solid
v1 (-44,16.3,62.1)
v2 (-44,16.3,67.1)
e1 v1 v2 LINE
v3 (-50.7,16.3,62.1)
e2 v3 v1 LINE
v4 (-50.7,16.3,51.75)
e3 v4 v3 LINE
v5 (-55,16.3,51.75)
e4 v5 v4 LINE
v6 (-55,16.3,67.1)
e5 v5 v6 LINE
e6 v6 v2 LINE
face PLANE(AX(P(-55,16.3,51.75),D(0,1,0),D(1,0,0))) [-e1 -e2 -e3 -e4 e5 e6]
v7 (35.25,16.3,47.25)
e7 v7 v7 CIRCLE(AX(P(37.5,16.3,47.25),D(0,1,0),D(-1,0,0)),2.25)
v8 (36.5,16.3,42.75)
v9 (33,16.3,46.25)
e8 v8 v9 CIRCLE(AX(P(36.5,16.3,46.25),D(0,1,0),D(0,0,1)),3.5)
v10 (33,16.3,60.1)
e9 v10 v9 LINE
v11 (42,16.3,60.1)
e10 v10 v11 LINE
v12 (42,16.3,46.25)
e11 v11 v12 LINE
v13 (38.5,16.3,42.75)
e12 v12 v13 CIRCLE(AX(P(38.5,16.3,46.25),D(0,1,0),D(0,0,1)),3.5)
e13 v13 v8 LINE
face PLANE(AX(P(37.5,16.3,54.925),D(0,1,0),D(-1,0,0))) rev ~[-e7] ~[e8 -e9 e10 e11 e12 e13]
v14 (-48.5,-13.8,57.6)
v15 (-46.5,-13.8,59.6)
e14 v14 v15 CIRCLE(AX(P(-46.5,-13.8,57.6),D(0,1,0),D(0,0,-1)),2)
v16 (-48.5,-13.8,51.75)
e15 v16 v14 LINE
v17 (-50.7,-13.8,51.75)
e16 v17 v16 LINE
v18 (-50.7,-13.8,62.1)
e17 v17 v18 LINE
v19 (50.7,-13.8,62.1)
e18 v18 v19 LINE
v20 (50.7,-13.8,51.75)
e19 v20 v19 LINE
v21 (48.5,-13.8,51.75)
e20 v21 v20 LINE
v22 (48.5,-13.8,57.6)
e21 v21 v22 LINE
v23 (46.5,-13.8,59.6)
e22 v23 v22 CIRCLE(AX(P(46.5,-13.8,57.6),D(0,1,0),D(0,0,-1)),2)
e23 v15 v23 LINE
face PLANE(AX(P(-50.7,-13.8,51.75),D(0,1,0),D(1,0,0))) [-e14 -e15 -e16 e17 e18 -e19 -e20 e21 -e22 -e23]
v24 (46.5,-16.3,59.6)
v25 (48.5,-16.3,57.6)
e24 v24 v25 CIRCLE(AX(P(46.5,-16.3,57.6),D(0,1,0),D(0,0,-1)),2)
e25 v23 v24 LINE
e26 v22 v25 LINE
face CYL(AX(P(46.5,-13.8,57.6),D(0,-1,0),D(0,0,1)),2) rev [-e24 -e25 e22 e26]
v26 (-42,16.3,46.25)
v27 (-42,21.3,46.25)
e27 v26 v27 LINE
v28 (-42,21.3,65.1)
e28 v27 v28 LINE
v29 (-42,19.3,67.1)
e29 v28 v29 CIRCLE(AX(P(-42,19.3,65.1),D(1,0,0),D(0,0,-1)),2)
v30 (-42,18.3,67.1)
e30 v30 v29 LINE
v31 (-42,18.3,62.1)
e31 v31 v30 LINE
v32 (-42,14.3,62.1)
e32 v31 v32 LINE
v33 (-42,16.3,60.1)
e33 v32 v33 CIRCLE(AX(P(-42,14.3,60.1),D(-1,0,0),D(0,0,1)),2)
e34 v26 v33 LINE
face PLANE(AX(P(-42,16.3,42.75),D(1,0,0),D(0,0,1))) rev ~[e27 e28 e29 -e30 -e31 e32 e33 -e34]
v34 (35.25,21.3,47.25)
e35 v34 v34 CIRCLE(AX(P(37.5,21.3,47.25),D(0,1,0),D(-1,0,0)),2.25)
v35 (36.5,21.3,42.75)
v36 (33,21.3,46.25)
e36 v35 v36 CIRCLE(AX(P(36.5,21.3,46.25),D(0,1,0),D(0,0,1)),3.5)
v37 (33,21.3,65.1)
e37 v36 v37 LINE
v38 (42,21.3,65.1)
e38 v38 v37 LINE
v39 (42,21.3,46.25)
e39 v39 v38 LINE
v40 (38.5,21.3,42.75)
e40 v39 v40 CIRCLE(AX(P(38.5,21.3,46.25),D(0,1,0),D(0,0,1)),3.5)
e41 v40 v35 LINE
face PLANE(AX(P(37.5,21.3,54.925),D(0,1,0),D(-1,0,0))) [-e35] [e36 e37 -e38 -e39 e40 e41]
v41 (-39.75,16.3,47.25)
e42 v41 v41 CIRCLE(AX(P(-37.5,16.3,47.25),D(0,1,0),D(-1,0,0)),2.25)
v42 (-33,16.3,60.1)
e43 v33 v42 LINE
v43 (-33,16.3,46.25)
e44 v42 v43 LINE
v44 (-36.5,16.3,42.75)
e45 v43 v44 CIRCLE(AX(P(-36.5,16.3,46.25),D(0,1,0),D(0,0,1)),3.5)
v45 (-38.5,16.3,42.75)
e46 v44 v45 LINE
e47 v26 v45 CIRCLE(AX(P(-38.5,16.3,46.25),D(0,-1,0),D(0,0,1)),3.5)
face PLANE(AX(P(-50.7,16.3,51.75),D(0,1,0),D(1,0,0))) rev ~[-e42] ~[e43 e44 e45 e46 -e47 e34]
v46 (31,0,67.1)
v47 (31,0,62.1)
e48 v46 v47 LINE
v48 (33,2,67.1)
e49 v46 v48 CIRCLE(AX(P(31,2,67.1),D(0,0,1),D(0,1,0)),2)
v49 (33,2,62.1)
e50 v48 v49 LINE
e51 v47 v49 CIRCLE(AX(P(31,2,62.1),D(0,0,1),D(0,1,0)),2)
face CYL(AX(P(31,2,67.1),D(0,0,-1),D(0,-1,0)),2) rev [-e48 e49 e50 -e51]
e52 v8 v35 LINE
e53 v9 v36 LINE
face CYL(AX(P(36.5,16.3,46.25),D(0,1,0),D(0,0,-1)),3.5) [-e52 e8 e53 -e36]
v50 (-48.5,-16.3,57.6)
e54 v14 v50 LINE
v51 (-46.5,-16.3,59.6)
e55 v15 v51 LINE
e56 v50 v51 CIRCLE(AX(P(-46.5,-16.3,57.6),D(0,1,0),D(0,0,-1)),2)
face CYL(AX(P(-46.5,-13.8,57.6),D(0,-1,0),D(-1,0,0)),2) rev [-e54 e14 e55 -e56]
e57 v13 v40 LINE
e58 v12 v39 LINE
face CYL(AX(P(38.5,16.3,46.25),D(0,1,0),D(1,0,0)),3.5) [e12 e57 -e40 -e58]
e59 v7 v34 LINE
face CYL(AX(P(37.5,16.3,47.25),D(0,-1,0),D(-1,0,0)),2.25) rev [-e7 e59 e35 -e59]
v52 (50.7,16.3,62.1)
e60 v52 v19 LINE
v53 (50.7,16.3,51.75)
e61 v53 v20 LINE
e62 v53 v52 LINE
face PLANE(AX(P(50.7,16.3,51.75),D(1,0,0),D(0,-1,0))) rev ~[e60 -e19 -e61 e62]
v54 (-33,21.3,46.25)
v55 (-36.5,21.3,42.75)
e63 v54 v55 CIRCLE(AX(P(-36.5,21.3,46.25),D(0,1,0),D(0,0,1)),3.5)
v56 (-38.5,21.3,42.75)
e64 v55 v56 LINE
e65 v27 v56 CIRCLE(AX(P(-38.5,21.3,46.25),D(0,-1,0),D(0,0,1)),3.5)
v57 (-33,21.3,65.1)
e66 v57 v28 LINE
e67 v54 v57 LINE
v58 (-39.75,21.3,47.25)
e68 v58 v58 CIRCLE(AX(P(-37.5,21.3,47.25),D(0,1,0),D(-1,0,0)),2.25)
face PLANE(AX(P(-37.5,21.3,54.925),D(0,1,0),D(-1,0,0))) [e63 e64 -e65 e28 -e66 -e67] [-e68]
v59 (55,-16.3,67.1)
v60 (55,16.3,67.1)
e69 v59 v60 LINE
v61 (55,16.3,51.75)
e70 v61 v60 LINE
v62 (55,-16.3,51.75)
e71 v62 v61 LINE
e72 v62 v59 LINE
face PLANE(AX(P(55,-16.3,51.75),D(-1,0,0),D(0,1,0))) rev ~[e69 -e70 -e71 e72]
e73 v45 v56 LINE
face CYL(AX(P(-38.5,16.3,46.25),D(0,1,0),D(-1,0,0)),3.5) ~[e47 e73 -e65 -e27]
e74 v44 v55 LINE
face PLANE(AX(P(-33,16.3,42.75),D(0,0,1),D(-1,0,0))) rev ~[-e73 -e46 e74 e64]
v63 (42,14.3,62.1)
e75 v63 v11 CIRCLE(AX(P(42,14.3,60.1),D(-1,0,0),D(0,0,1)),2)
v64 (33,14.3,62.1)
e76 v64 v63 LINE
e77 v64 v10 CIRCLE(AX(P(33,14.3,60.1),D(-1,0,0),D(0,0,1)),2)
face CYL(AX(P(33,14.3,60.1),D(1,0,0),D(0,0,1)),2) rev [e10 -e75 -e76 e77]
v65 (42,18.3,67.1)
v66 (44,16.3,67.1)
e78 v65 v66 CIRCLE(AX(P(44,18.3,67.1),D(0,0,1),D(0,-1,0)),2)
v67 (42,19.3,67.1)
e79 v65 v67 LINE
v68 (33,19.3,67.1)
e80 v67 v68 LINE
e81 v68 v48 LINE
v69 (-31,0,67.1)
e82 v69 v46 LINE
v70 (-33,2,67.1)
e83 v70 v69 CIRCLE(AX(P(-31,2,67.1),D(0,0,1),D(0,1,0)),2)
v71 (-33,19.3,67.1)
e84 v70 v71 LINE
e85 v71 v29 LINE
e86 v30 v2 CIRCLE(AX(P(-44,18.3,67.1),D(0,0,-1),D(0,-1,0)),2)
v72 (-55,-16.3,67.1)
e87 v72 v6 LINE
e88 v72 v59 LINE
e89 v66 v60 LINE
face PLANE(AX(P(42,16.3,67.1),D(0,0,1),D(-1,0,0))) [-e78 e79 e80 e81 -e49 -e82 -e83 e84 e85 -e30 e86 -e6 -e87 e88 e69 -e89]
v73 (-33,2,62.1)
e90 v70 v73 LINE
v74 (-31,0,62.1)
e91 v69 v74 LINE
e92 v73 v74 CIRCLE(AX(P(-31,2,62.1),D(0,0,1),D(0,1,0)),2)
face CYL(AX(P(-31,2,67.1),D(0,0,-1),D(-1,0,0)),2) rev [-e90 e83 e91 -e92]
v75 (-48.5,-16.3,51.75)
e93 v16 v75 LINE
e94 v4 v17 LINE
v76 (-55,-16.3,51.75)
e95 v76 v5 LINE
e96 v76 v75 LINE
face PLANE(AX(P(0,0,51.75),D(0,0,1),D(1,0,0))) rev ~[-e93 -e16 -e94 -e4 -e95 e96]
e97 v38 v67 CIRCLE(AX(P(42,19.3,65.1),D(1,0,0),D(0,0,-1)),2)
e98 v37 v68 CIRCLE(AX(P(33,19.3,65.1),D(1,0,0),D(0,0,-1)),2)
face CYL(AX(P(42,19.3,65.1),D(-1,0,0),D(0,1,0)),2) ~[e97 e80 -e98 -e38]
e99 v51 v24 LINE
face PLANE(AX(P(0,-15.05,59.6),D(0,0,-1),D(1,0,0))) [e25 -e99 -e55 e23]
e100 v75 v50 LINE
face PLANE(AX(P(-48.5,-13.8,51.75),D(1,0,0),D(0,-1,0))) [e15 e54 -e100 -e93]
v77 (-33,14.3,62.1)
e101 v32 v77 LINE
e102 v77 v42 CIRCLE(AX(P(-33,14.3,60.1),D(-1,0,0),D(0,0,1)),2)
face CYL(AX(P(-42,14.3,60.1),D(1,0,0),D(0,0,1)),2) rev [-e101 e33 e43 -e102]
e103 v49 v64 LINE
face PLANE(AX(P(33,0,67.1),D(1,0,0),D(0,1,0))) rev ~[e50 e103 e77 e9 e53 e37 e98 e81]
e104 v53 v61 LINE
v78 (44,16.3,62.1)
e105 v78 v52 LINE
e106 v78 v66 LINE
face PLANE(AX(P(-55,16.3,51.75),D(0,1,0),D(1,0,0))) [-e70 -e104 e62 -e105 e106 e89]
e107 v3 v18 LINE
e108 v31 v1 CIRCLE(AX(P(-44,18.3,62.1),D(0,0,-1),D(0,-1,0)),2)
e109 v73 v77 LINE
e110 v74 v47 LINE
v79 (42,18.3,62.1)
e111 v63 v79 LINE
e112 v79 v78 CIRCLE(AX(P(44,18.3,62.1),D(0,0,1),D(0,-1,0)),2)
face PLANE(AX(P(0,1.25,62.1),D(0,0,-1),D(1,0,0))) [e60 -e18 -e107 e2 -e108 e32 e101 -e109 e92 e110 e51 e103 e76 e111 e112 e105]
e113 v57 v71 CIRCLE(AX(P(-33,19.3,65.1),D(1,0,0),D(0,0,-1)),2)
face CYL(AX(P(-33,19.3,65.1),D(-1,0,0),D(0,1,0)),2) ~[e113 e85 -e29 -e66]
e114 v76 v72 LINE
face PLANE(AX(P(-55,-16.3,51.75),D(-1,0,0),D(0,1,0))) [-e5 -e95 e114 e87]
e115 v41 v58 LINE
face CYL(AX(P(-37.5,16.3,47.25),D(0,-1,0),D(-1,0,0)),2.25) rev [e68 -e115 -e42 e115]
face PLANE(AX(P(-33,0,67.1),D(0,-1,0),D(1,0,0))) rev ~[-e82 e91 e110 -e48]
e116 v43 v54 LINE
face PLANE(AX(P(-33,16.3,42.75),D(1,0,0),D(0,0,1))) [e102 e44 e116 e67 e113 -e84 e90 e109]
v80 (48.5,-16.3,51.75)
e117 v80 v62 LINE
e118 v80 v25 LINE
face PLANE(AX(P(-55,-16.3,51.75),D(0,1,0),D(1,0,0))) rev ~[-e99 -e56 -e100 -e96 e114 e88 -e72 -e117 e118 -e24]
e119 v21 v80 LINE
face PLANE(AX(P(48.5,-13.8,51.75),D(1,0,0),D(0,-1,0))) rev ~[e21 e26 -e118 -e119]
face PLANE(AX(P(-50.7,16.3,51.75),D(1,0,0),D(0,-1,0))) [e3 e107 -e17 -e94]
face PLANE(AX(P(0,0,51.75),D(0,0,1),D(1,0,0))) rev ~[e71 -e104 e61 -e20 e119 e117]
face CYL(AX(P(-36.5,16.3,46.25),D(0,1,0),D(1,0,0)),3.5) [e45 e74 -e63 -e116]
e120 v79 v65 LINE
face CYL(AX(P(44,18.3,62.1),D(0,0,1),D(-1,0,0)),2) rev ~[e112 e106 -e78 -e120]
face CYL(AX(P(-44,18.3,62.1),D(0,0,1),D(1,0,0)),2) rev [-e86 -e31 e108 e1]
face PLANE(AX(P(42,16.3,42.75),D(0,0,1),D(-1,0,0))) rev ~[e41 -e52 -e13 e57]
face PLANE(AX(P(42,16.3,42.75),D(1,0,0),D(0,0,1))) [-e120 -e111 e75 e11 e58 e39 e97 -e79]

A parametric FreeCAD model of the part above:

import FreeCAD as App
import Part
import Sketcher
from FreeCAD import Vector
Q = App.Units.Quantity


def edges_at(feature, points):
    """Names of the edges that pass closest to the given points."""
    edges = feature.Shape.Edges
    near = lambda p: min(range(len(edges)), key=lambda i: edges[i].distToShape(Part.Vertex(*p))[0])
    return sorted({f"Edge{near(p) + 1}" for p in points})


def add_polygon(sketch, points):
    """Adds a closed chain of lines whose ends are joined by coincident constraints."""
    first, n = sketch.GeometryCount, len(points)
    for a, b in zip(points, points[1:] + points[:1]):
        sketch.addGeometry(Part.LineSegment(App.Vector(*a, 0), App.Vector(*b, 0)), False)
    for i in range(n):
        sketch.addConstraint(Sketcher.Constraint("Coincident", first + i, 2, first + (i + 1) % n, 1))

doc = App.newDocument("Part")
body = doc.addObject("PartDesign::Body", "Body")

# Sketch on XY plane
sketch1 = body.newObject("Sketcher::SketchObject", "Sketch")
sketch1.AttachmentSupport = (doc.getObject("XY_Plane"), [""])
sketch1.MapMode = "FlatFace"
add_polygon(sketch1, [(-55, 16), (-55, -16), (55, -16), (55, 16)])  # lines 0-3
sketch1.addConstraint(Sketcher.Constraint("Vertical", 0))
sketch1.addConstraint(Sketcher.Constraint("Horizontal", 1))
sketch1.addConstraint(Sketcher.Constraint("Vertical", 2))
sketch1.addConstraint(Sketcher.Constraint("Horizontal", 3))
sketch1.addConstraint(Sketcher.Constraint("Symmetric", 0, 2, 2, 2, -1, 1))
sketch1.addConstraint(Sketcher.Constraint("DistanceX", 1, 1, 1, 2, Q("110 mm")))
sketch1.addConstraint(Sketcher.Constraint("DistanceY", 0, 2, 0, 1, Q("32.6 mm")))
pad1 = body.newObject("PartDesign::Pad", "Pad")
pad1.Profile = sketch1
pad1.Length = 15.35

# Sketch on XZ plane
sketch2 = body.newObject("Sketcher::SketchObject", "Sketch001")
sketch2.AttachmentSupport = (doc.getObject("XZ_Plane"), [""])
sketch2.MapMode = "FlatFace"
sketch2.AttachmentOffset = App.Placement(Vector(0, 0, -16.3), App.Rotation())
add_polygon(sketch2, [(42, 15.3), (42, -9), (33, -9), (33, 15.3)])  # lines 0-3
sketch2.addGeometry(Part.Circle(Vector(37.5, -4.5, 0), Vector(0, 0, 1), 2.2), False)  # 4
add_polygon(sketch2, [(-33, 15.3), (-33, -9), (-42, -9), (-42, 15.3)])  # lines 5-8
sketch2.addGeometry(Part.Circle(Vector(-37.5, -4.5, 0), Vector(0, 0, 1), 2.2), False)  # 9
sketch2.addConstraint(Sketcher.Constraint("Vertical", 0))
sketch2.addConstraint(Sketcher.Constraint("Horizontal", 1))
sketch2.addConstraint(Sketcher.Constraint("Vertical", 2))
sketch2.addConstraint(Sketcher.Constraint("Horizontal", 3))
sketch2.addConstraint(Sketcher.Constraint("Vertical", 5))
sketch2.addConstraint(Sketcher.Constraint("Horizontal", 6))
sketch2.addConstraint(Sketcher.Constraint("Vertical", 7))
sketch2.addConstraint(Sketcher.Constraint("Horizontal", 8))
sketch2.addConstraint(Sketcher.Constraint("Equal", 4, 9))
sketch2.addConstraint(Sketcher.Constraint("Symmetric", 4, 3, 9, 3, -2))
sketch2.addConstraint(Sketcher.Constraint("Symmetric", 1, 2, 5, 2, -2))
sketch2.addConstraint(Sketcher.Constraint("Symmetric", 3, 2, 7, 2, -2))
sketch2.addConstraint(Sketcher.Constraint("Diameter", 4, Q("4.5 mm")))
sketch2.addConstraint(Sketcher.Constraint("DistanceX", 1, 2, 1, 1, Q("9 mm")))
sketch2.addConstraint(Sketcher.Constraint("DistanceX", -1, 1, 0, 2, Q("42 mm")))
sketch2.addConstraint(Sketcher.Constraint("DistanceY", 0, 2, -1, 1, Q("9 mm")))
sketch2.addConstraint(Sketcher.Constraint("DistanceX", 9, 3, 4, 3, Q("75 mm")))
sketch2.addConstraint(Sketcher.Constraint("DistanceY", 0, 2, 0, 1, Q("24.35 mm")))
sketch2.addConstraint(Sketcher.Constraint("DistanceY", 4, 3, -1, 1, Q("4.5 mm")))
pad2 = body.newObject("PartDesign::Pad", "Pad001")
pad2.Profile = sketch2
pad2.Length = 5
pad2.Reversed = True
doc.recompute()

fillet = body.newObject("PartDesign::Fillet", "Fillet")
fillet.Base = (pad2, edges_at(pad2, [
    (42, 18.8, -9),
    (33, 18.8, -9),
    (-33, 18.8, -9),
    (-42, 18.8, -9),
]))
fillet.Radius = 3.5

# Sketch on XY plane
sketch3 = body.newObject("Sketcher::SketchObject", "Sketch002")
sketch3.AttachmentSupport = (doc.getObject("XY_Plane"), [""])
sketch3.MapMode = "FlatFace"
add_polygon(sketch3, [(-51, -14), (-51, 16), (51, 16), (51, -14)])  # lines 0-3
sketch3.addConstraint(Sketcher.Constraint("Vertical", 0))
sketch3.addConstraint(Sketcher.Constraint("Horizontal", 1))
sketch3.addConstraint(Sketcher.Constraint("Vertical", 2))
sketch3.addConstraint(Sketcher.Constraint("Horizontal", 3))
sketch3.addConstraint(Sketcher.Constraint("DistanceX", 1, 1, 1, 2, Q("101.4 mm")))
sketch3.addConstraint(Sketcher.Constraint("DistanceY", 0, 1, 0, 2, Q("30.1 mm")))
sketch3.addConstraint(Sketcher.Constraint("DistanceX", 0, 2, -1, 1, Q("50.7 mm")))
sketch3.addConstraint(Sketcher.Constraint("DistanceY", -1, 1, 0, 2, Q("16.3 mm")))
pocket1 = body.newObject("PartDesign::Pocket", "Pocket")
pocket1.Profile = sketch3
pocket1.Length = 10.35
pocket1.Reversed = True

# Sketch on XY plane
sketch4 = body.newObject("Sketcher::SketchObject", "Sketch003")
sketch4.AttachmentSupport = (doc.getObject("XY_Plane"), [""])
sketch4.MapMode = "FlatFace"
add_polygon(sketch4, [(-48.5, -16.3), (-48.5, -13.8), (48.5, -13.8), (48.5, -16.3)])  # lines 0-3
sketch4.addConstraint(Sketcher.Constraint("Vertical", 0))
sketch4.addConstraint(Sketcher.Constraint("Horizontal", 1))
sketch4.addConstraint(Sketcher.Constraint("Vertical", 2))
sketch4.addConstraint(Sketcher.Constraint("Horizontal", 3))
sketch4.addConstraint(Sketcher.Constraint("DistanceX", 1, 1, 1, 2, Q("97 mm")))
sketch4.addConstraint(Sketcher.Constraint("DistanceY", 0, 1, 0, 2, Q("2.5 mm")))
sketch4.addConstraint(Sketcher.Constraint("DistanceX", 0, 2, -1, 1, Q("48.5 mm")))
sketch4.addConstraint(Sketcher.Constraint("DistanceY", 0, 2, -1, 1, Q("13.8 mm")))
pocket2 = body.newObject("PartDesign::Pocket", "Pocket001")
pocket2.Profile = sketch4
pocket2.Length = 7.85
pocket2.Reversed = True
doc.recompute()

fillet2 = body.newObject("PartDesign::Fillet", "Fillet001")
fillet2.Base = (pocket2, edges_at(pocket2, [(-48.5, -15.05, 7.85), (48.5, -15.05, 7.85)]))
fillet2.Radius = 2

# Sketch on XY plane
sketch5 = body.newObject("Sketcher::SketchObject", "Sketch004")
sketch5.AttachmentSupport = (doc.getObject("XY_Plane"), [""])
sketch5.MapMode = "FlatFace"
sketch5.AttachmentOffset = App.Placement(Vector(0, 0, 15.35), App.Rotation())
add_polygon(sketch5, [(-33, 16), (-33, 0), (33, 0), (33, 16)])  # lines 0-3
sketch5.addConstraint(Sketcher.Constraint("Vertical", 0))
sketch5.addConstraint(Sketcher.Constraint("Horizontal", 1))
sketch5.addConstraint(Sketcher.Constraint("Vertical", 2))
sketch5.addConstraint(Sketcher.Constraint("Horizontal", 3))
sketch5.addConstraint(Sketcher.Constraint("Symmetric", 0, 2, 1, 2, -1, 1))
sketch5.addConstraint(Sketcher.Constraint("DistanceX", 1, 1, 1, 2, Q("66 mm")))
sketch5.addConstraint(Sketcher.Constraint("DistanceY", 0, 2, 0, 1, Q("16.3 mm")))
pocket3 = body.newObject("PartDesign::Pocket", "Pocket002")
pocket3.Profile = sketch5
pocket3.Length = 5
doc.recompute()

fillet3 = body.newObject("PartDesign::Fillet", "Fillet002")
fillet3.Base = (pocket3, edges_at(pocket3, [
    (-33, 0, 12.85),
    (33, 0, 12.85),
    (-37.5, 16.3, 10.35),
    (37.5, 16.3, 10.35),
    (37.5, 21.3, 15.35),
    (-37.5, 21.3, 15.35),
]))
fillet3.Radius = 2
doc.recompute()

fillet4 = body.newObject("PartDesign::Fillet", "Fillet003")
fillet4.Base = (fillet3, edges_at(fillet3, [(42, 16.3, 12.85), (-42, 16.3, 12.85)]))
fillet4.Radius = 2
body2 = doc.addObject("PartDesign::Body", "Body001")
doc.recompute()

body.Placement = App.Placement(Vector(0, 0, 51.75), App.Rotation(Vector(0, 0, 1), 0))
boolean = body2.newObject("PartDesign::Boolean", "Boolean")
boolean.Type = "Fuse"
boolean.addObjects([body])

doc.recompute()
